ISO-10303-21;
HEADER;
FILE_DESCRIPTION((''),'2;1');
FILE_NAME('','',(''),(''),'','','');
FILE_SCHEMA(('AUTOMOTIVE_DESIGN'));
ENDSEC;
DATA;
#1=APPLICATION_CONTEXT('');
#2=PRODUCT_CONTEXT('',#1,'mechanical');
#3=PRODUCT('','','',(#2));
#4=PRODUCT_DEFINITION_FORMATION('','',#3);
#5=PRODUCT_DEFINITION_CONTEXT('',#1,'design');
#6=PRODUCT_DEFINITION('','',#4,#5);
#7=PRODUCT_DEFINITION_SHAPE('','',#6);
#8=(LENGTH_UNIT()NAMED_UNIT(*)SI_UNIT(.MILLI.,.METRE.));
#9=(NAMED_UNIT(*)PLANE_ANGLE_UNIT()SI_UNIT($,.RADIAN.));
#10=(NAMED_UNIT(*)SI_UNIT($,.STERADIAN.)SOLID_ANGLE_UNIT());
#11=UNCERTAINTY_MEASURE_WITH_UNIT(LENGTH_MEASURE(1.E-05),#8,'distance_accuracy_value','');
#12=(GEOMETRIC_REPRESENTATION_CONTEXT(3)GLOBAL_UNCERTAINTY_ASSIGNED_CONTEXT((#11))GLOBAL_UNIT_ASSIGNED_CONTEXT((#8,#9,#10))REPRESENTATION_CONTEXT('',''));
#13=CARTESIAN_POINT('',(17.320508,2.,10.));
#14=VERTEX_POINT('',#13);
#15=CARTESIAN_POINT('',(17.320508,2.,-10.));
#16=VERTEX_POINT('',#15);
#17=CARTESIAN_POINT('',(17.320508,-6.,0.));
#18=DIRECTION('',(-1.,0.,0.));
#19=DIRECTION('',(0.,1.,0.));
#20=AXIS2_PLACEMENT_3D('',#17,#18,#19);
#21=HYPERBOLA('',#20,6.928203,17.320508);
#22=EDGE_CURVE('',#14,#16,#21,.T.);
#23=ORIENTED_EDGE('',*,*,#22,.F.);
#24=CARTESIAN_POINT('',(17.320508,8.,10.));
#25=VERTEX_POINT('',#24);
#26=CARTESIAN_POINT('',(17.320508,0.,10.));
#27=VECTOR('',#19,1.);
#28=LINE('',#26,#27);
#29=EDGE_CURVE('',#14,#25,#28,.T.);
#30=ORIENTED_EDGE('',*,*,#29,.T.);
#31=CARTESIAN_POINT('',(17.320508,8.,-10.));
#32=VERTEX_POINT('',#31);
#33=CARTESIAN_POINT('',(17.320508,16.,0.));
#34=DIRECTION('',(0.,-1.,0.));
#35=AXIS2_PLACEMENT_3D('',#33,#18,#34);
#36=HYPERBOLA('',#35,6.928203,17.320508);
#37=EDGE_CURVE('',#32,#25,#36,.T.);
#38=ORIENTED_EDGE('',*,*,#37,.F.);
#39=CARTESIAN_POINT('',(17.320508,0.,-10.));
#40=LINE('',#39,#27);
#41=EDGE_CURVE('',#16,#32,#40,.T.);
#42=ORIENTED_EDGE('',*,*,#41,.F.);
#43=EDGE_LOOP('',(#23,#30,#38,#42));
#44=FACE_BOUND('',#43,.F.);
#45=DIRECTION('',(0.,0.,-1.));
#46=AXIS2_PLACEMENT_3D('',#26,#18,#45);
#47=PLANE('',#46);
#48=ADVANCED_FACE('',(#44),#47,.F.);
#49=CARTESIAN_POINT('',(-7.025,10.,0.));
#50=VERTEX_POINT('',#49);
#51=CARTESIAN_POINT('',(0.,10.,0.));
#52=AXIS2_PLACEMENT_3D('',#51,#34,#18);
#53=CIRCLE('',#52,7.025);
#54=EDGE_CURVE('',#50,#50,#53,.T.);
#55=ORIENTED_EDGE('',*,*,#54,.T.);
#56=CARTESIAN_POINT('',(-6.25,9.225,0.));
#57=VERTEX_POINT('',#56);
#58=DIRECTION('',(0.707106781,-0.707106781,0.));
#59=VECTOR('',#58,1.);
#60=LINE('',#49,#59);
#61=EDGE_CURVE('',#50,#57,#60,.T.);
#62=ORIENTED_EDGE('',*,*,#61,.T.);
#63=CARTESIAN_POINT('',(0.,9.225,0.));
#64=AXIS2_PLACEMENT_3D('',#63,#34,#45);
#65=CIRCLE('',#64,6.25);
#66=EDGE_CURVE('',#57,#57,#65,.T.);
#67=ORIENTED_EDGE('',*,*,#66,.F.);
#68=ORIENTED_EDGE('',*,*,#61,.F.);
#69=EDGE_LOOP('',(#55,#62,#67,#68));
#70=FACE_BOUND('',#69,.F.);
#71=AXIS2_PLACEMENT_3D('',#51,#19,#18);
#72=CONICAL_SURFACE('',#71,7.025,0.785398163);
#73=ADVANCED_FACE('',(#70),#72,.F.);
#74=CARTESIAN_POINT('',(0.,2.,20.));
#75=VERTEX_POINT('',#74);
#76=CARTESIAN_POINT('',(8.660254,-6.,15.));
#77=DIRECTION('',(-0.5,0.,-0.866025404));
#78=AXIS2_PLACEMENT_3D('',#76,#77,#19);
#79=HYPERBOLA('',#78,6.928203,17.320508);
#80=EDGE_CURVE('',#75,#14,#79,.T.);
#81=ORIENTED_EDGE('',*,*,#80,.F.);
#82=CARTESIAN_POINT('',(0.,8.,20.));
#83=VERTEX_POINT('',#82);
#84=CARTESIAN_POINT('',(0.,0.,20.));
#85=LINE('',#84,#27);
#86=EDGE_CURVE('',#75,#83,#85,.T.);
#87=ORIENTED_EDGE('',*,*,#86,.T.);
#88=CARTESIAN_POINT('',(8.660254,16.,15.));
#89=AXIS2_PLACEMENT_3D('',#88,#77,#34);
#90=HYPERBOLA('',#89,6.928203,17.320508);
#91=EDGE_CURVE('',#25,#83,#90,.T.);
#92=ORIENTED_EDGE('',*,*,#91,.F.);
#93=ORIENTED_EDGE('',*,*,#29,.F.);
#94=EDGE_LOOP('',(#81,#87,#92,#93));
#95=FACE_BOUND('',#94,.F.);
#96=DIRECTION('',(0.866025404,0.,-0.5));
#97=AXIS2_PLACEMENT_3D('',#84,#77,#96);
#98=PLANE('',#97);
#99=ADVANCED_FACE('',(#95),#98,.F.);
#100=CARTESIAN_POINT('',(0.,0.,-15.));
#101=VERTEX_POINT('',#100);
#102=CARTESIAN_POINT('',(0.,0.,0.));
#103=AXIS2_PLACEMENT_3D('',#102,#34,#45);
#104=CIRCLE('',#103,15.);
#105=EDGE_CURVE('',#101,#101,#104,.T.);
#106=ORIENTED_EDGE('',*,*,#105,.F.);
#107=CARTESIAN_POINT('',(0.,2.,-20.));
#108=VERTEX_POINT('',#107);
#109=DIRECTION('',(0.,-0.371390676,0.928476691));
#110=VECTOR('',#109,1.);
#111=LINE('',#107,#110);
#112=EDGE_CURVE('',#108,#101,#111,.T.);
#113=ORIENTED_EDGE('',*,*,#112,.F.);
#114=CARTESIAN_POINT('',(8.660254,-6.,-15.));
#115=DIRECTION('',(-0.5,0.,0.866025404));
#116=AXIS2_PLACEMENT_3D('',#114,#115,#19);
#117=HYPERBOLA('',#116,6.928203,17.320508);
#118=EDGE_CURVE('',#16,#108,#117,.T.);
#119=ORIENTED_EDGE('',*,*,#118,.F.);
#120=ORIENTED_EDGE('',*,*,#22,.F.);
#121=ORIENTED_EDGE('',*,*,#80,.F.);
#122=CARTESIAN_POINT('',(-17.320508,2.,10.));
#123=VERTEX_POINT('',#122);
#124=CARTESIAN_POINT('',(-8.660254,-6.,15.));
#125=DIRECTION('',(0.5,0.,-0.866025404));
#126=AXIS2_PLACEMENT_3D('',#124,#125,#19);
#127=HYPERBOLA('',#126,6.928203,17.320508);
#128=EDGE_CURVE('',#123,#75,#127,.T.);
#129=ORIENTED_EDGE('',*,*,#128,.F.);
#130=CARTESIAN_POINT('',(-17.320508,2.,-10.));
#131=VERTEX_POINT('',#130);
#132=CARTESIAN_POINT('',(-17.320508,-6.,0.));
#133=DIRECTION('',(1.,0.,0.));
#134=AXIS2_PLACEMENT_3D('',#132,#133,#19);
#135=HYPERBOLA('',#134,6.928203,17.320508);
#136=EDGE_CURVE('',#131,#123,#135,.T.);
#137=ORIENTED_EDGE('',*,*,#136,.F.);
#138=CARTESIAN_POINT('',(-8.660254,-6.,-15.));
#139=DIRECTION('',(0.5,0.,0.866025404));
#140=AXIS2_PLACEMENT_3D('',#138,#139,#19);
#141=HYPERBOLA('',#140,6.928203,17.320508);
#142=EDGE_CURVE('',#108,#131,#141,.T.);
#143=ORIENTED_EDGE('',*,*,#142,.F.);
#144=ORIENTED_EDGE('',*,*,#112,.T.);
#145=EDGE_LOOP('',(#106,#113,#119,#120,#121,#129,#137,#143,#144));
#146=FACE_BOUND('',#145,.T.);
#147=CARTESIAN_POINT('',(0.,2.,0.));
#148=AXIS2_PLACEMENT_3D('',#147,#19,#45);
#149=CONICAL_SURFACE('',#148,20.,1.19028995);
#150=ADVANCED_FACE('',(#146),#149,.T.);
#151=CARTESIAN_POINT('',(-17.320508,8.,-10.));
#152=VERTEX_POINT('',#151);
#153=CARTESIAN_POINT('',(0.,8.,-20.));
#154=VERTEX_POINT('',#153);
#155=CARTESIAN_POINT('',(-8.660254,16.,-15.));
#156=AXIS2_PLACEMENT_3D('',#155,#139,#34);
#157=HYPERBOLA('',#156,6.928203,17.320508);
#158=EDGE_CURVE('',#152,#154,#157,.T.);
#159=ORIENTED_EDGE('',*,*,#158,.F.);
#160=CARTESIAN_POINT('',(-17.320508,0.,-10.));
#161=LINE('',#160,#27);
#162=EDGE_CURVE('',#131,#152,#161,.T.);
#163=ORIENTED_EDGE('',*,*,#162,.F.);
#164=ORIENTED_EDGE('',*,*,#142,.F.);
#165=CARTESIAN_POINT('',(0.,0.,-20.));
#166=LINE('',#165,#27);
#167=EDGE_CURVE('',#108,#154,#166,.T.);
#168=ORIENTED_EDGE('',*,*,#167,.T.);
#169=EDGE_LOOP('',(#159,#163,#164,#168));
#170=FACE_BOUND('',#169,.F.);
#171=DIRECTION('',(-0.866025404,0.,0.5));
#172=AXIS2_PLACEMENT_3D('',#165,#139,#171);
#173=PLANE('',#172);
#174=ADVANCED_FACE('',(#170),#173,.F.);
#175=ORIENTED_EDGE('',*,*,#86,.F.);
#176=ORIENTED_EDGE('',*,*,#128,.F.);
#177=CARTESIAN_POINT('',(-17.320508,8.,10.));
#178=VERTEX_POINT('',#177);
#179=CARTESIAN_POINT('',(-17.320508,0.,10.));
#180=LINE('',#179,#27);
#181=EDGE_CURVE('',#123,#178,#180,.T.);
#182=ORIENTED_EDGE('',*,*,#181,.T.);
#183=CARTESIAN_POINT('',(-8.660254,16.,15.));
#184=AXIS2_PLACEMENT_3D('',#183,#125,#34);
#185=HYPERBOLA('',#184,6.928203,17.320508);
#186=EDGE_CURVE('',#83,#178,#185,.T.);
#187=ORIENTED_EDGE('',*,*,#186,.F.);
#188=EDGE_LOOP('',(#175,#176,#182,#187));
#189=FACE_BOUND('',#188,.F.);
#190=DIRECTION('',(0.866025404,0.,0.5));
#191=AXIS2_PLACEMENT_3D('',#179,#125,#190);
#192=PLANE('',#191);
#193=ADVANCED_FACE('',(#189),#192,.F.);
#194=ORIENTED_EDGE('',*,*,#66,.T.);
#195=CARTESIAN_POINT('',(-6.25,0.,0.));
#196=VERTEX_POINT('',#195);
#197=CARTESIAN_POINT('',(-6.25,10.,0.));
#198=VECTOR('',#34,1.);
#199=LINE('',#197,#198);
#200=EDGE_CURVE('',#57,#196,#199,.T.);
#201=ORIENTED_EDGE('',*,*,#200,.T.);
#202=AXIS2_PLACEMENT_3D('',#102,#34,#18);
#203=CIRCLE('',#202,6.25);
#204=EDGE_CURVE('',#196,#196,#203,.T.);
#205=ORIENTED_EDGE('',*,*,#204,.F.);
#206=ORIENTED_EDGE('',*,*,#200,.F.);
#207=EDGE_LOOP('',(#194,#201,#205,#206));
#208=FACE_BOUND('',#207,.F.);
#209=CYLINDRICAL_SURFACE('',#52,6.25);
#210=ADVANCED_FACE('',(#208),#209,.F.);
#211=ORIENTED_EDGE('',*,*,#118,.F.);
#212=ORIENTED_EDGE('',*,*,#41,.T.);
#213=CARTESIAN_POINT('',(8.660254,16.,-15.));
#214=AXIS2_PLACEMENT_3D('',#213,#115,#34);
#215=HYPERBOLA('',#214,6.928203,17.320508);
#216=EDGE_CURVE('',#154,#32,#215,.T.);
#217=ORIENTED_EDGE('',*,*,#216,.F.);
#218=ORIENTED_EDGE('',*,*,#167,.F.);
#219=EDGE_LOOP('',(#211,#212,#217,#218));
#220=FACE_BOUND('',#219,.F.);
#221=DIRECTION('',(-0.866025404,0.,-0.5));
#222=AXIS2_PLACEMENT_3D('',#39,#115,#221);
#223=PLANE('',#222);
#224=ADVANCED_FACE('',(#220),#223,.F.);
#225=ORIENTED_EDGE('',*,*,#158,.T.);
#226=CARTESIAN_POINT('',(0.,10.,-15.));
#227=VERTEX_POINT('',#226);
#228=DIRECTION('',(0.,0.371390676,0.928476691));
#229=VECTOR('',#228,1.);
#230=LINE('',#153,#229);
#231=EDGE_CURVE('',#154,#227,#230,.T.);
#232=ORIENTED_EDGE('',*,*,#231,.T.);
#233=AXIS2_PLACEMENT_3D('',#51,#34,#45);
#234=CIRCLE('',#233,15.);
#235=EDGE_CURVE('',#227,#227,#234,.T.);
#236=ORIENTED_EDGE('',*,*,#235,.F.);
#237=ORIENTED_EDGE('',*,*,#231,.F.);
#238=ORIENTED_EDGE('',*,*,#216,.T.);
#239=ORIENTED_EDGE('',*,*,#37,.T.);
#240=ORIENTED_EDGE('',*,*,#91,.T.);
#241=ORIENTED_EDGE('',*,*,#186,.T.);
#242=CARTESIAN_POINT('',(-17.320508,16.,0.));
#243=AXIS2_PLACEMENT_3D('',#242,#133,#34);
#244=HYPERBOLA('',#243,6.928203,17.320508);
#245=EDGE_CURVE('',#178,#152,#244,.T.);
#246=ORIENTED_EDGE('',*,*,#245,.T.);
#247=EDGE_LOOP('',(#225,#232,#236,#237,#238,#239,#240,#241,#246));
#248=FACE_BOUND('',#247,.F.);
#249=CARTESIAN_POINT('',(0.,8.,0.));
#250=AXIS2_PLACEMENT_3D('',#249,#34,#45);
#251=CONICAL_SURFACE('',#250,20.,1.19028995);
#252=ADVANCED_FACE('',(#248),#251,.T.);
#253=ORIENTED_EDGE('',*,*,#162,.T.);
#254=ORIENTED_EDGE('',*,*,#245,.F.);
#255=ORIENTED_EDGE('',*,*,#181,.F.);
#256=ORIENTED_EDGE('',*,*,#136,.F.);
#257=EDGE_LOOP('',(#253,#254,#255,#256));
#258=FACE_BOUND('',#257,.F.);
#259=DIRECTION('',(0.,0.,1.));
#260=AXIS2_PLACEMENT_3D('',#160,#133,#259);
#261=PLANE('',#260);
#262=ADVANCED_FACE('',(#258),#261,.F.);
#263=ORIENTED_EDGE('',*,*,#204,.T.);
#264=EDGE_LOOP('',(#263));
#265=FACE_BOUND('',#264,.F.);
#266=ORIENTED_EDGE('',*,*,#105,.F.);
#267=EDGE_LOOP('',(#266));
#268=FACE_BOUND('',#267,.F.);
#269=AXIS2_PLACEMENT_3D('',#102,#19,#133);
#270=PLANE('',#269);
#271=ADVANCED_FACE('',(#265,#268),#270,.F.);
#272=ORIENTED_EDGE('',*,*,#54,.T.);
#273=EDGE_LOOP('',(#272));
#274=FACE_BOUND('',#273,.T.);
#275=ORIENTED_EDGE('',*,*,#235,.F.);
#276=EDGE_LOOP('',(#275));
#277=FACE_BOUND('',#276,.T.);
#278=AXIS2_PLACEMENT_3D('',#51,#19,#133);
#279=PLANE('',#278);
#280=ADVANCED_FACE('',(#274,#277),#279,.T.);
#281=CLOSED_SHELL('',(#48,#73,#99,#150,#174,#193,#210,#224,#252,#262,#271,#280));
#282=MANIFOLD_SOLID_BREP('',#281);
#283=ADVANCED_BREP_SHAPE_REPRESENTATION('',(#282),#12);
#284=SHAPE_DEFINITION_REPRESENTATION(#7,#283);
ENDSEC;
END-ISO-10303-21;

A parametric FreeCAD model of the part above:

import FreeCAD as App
import Part
import Sketcher
Q = App.Units.Quantity

doc = App.newDocument("Part")
body = doc.addObject("PartDesign::Body", "Body")

# Sketch on XZ plane
sketch1 = body.newObject("Sketcher::SketchObject", "Sketch")
sketch1.AttachmentSupport = (doc.getObject("XZ_Plane"), [""])
sketch1.MapMode = "FlatFace"
sketch1.addGeometry(Part.LineSegment(App.Vector(0, 20, 0), App.Vector(17, 10, 0)), False)
sketch1.addGeometry(Part.LineSegment(App.Vector(17, 10, 0), App.Vector(17, -10, 0)), False)
sketch1.addGeometry(Part.LineSegment(App.Vector(17, -10, 0), App.Vector(0, -20, 0)), False)
sketch1.addGeometry(Part.LineSegment(App.Vector(0, -20, 0), App.Vector(-17, -10, 0)), False)
sketch1.addGeometry(Part.LineSegment(App.Vector(-17, -10, 0), App.Vector(-17, 10, 0)), False)
sketch1.addGeometry(Part.LineSegment(App.Vector(-17, 10, 0), App.Vector(0, 20, 0)), False)
sketch1.addConstraint(Sketcher.Constraint("Coincident", 0, 2, 1, 1))
sketch1.addConstraint(Sketcher.Constraint("Coincident", 1, 2, 2, 1))
sketch1.addConstraint(Sketcher.Constraint("Coincident", 2, 2, 3, 1))
sketch1.addConstraint(Sketcher.Constraint("Coincident", 3, 2, 4, 1))
sketch1.addConstraint(Sketcher.Constraint("Coincident", 4, 2, 5, 1))
sketch1.addConstraint(Sketcher.Constraint("Coincident", 5, 2, 0, 1))
sketch1.addConstraint(Sketcher.Constraint("Vertical", 1))
sketch1.addConstraint(Sketcher.Constraint("Vertical", 4))
sketch1.addConstraint(Sketcher.Constraint("Symmetric", 0, 2, 3, 2, -1, 1))
sketch1.addConstraint(Sketcher.Constraint("Symmetric", 2, 2, 5, 2, -1, 1))
sketch1.addConstraint(Sketcher.Constraint("PointOnObject", 2, 2, -2))
sketch1.addConstraint(Sketcher.Constraint("Parallel", 2, 5))
sketch1.addConstraint(Sketcher.Constraint("Horizontal", 1, 2, 3, 2))
sketch1.addConstraint(Sketcher.Constraint("DistanceY", 1, 2, 1, 1, 20.0))
sketch1.addConstraint(Sketcher.Constraint("Angle", 0, Q("-30 deg")))
sketch1.addConstraint(Sketcher.Constraint("Distance", 0, 20.0))
pad1 = body.newObject("PartDesign::Pad", "Pad")
pad1.Profile = sketch1
pad1.Length = 10
pad1.Reversed = True

# Sketch on XZ plane
sketch2 = body.newObject("Sketcher::SketchObject", "Sketch001")
sketch2.AttachmentSupport = (doc.getObject("XZ_Plane"), [""])
sketch2.MapMode = "FlatFace"
sketch2.AttachmentOffset = App.Placement(App.Vector(0, 0, -10), App.Rotation())
sketch2.addGeometry(Part.Circle(App.Vector(0, 0, 0), App.Vector(0, 0, 1), 6), False)
sketch2.addConstraint(Sketcher.Constraint("Coincident", 0, 3, -1, 1))
sketch2.addConstraint(Sketcher.Constraint("Diameter", 0, 12.5))
doc.recompute()
hole = body.newObject("PartDesign::Hole", "Hole")
hole.Profile = sketch2
hole.ThreadType = "None"
hole.Diameter = 12.5
hole.DepthType = "ThroughAll"
hole.HoleCutType = "Countersink"
hole.HoleCutDiameter = 14.05
hole.HoleCutCountersinkAngle = 90
hole.Reversed = True

# Sketch on YZ plane
sketch3 = body.newObject("Sketcher::SketchObject", "Sketch002")
sketch3.AttachmentSupport = (doc.getObject("YZ_Plane"), [""])
sketch3.MapMode = "FlatFace"
sketch3.addGeometry(Part.LineSegment(App.Vector(8, -20, 0), App.Vector(10, -20, 0)), False)
sketch3.addGeometry(Part.LineSegment(App.Vector(10, -20, 0), App.Vector(10, -15, 0)), False)
sketch3.addGeometry(Part.LineSegment(App.Vector(10, -15, 0), App.Vector(8, -20, 0)), False)
sketch3.addGeometry(Part.LineSegment(App.Vector(2, -20, 0), App.Vector(0, -15, 0)), False)
sketch3.addGeometry(Part.LineSegment(App.Vector(0, -15, 0), App.Vector(0, -20, 0)), False)
sketch3.addGeometry(Part.LineSegment(App.Vector(0, -20, 0), App.Vector(2, -20, 0)), False)
sketch3.addConstraint(Sketcher.Constraint("Coincident", 0, 2, 1, 1))
sketch3.addConstraint(Sketcher.Constraint("Coincident", 1, 2, 2, 1))
sketch3.addConstraint(Sketcher.Constraint("Coincident", 2, 2, 0, 1))
sketch3.addConstraint(Sketcher.Constraint("Coincident", 3, 2, 4, 1))
sketch3.addConstraint(Sketcher.Constraint("Coincident", 4, 2, 5, 1))
sketch3.addConstraint(Sketcher.Constraint("Coincident", 5, 2, 3, 1))
sketch3.addConstraint(Sketcher.Constraint("Horizontal", 0))
sketch3.addConstraint(Sketcher.Constraint("Vertical", 1))
sketch3.addConstraint(Sketcher.Constraint("Vertical", 4))
sketch3.addConstraint(Sketcher.Constraint("Horizontal", 5))
sketch3.addConstraint(Sketcher.Constraint("PointOnObject", 3, 2, -2))
sketch3.addConstraint(Sketcher.Constraint("Horizontal", 1, 2, 3, 2))
sketch3.addConstraint(Sketcher.Constraint("Horizontal", 2, 2, 4, 2))
sketch3.addConstraint(Sketcher.Constraint("Equal", 0, 5))
sketch3.addConstraint(Sketcher.Constraint("DistanceX", 0, 1, 0, 2, 2.0))
sketch3.addConstraint(Sketcher.Constraint("DistanceY", 1, 1, 1, 2, 5.0))
sketch3.addConstraint(Sketcher.Constraint("DistanceX", -1, 1, 0, 2, 10.0))
sketch3.addConstraint(Sketcher.Constraint("DistanceY", 0, 2, -1, 1, 20.0))
groove = body.newObject("PartDesign::Groove", "Groove")
groove.Profile = sketch3
groove.ReferenceAxis = (sketch3, ["H_Axis"])
groove.Angle = 360

doc.recompute()
